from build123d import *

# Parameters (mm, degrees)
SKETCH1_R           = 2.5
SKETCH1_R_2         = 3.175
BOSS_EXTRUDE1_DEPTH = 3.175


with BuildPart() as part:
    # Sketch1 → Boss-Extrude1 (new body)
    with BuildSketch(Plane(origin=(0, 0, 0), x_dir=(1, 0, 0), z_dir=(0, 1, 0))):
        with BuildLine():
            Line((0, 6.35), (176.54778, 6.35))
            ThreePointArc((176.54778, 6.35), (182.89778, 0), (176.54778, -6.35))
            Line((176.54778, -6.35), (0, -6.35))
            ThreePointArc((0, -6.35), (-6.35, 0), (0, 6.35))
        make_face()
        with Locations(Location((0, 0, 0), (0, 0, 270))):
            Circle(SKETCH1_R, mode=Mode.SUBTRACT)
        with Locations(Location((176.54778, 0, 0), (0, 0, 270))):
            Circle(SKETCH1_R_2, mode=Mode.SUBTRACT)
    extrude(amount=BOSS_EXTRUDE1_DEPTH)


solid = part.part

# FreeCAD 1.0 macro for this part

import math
import FreeCAD as App
import Part
import Sketcher
Q = App.Units.Quantity

doc = App.newDocument("Part")
body = doc.addObject("PartDesign::Body", "Body")

# Sketch on XZ plane
sketch1 = doc.addObject("Sketcher::SketchObject", "Sketch")
body.addObject(sketch1)
sketch1.AttachmentSupport = (doc.XZ_Plane, [""])
sketch1.MapMode = "FlatFace"
sketch1.addGeometry([
    Part.LineSegment(App.Vector(176.5, -6.3, 0), App.Vector(0, -6.3, 0)),  # 0
    Part.ArcOfCircle(Part.Circle(App.Vector(0, 0, 0), App.Vector(0, 0, 1), 6.3), math.radians(90), math.radians(270)),  # 1
    Part.LineSegment(App.Vector(0, 6.3, 0), App.Vector(176.5, 6.3, 0)),  # 2
    Part.ArcOfCircle(Part.Circle(App.Vector(176.5, 0, 0), App.Vector(0, 0, 1), 6.3), math.radians(-90), math.radians(90)),  # 3
    Part.Circle(App.Vector(176.5, 0, 0), App.Vector(0, 0, 1), 3.2),  # 4
    Part.Circle(App.Vector(0, 0, 0), App.Vector(0, 0, 1), 2.5),  # 5
], False)
sketch1.addConstraint([
    Sketcher.Constraint("Tangent", 0, 2, 1, 2),
    Sketcher.Constraint("Tangent", 1, 1, 2, 1),
    Sketcher.Constraint("Tangent", 2, 2, 3, 2),
    Sketcher.Constraint("Tangent", 3, 1, 0, 1),
    Sketcher.Constraint("Horizontal", 0),
    Sketcher.Constraint("Horizontal", 2),
    Sketcher.Constraint("Coincident", 1, 3, -1, 1),
    Sketcher.Constraint("Coincident", 5, 3, -1, 1),
    Sketcher.Constraint("Coincident", 4, 3, 3, 3),
    Sketcher.Constraint("Diameter", 4, Q("0.25 in")),
    Sketcher.Constraint("Radius", 1, Q("0.25 in")),
    Sketcher.Constraint("Diameter", 5, Q("5 mm")),
    Sketcher.Constraint("DistanceX", 0, 2, 0, 1, Q("6.9507 in")),
])
pad1 = doc.addObject("PartDesign::Pad", "Pad")
body.addObject(pad1)
pad1.Profile = sketch1
pad1.Length = Q("0.125 in")
pad1.Reversed = True

doc.recompute()
